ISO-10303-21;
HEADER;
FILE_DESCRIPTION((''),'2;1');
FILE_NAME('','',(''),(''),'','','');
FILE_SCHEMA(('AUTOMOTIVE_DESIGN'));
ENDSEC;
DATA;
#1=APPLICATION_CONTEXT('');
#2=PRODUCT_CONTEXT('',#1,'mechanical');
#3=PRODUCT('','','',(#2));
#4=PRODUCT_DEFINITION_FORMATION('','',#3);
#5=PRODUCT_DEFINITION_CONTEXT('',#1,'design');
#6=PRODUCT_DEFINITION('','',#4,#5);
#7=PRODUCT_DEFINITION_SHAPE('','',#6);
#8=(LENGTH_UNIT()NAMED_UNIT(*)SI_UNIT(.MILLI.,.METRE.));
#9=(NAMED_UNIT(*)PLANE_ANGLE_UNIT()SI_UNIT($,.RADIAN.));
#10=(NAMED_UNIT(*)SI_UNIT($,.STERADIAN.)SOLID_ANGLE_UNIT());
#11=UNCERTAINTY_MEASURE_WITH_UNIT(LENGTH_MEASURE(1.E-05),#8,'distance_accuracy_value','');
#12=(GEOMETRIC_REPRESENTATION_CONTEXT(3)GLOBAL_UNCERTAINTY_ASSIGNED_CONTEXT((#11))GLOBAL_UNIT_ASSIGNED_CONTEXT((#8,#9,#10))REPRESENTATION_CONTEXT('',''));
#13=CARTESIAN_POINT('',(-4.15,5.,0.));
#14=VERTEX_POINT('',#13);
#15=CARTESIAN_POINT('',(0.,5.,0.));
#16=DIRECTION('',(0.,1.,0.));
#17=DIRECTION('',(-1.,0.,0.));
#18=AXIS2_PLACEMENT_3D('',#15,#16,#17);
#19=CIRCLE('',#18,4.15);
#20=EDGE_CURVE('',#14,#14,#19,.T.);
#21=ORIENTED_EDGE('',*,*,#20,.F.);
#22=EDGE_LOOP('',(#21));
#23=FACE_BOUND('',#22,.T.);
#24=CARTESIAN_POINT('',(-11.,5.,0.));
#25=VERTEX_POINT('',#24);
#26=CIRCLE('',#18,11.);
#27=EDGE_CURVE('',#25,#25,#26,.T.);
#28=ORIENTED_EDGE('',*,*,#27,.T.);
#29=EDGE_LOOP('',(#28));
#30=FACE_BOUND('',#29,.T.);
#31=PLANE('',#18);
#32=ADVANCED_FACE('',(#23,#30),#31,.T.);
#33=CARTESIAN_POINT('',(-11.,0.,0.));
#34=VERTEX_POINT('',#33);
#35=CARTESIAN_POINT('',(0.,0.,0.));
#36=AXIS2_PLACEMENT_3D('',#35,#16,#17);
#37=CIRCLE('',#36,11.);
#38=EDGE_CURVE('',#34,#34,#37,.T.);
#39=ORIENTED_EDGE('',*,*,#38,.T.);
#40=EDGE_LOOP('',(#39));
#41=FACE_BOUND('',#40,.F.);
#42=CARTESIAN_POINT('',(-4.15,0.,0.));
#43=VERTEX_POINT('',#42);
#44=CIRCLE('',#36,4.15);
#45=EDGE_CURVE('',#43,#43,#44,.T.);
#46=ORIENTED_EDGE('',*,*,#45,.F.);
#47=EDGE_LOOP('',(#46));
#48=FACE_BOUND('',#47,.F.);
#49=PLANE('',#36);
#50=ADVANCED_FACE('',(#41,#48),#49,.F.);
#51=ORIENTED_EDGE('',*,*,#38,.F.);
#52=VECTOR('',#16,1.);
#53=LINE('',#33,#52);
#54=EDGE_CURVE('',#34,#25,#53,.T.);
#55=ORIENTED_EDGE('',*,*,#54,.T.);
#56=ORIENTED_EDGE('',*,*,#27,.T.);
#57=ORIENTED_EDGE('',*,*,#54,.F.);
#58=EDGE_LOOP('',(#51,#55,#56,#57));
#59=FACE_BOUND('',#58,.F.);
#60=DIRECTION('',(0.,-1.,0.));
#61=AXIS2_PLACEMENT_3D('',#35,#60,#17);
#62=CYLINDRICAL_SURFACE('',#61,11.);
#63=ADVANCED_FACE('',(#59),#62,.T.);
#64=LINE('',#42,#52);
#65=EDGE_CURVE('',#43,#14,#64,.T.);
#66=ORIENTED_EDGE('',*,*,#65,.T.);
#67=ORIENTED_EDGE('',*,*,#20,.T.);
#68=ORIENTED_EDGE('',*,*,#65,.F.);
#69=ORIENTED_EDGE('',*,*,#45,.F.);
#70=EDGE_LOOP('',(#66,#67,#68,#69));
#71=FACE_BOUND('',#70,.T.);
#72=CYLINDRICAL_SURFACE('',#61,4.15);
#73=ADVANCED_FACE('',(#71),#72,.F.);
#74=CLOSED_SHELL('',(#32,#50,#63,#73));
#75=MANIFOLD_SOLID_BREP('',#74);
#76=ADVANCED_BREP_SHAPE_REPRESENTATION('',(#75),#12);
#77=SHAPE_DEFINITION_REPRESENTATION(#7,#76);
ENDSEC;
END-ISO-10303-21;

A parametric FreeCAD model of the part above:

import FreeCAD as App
import Part
import Sketcher

doc = App.newDocument("Part")
body = doc.addObject("PartDesign::Body", "Body")

sketch1 = doc.addObject("Sketcher::SketchObject", "Sketch")
body.addObject(sketch1)
sketch1.AttachmentSupport = (doc.XZ_Plane, [""])
sketch1.MapMode = "FlatFace"
sketch1.addGeometry([
    Part.Circle(App.Vector(0, 0, 0), App.Vector(0, 0, 1), 11),
    Part.Circle(App.Vector(0, 0, 0), App.Vector(0, 0, 1), 4.2),
], False)
sketch1.addConstraint([
    Sketcher.Constraint("Coincident", 0, 3, -1, 1),
    Sketcher.Constraint("Coincident", 1, 3, -1, 1),
    Sketcher.Constraint("Diameter", 0, 22.0),
    Sketcher.Constraint("Diameter", 1, 8.3),
])
pad1 = doc.addObject("PartDesign::Pad", "Pad")
body.addObject(pad1)
pad1.Profile = sketch1
pad1.Length = 5
pad1.Reversed = True

doc.recompute()
